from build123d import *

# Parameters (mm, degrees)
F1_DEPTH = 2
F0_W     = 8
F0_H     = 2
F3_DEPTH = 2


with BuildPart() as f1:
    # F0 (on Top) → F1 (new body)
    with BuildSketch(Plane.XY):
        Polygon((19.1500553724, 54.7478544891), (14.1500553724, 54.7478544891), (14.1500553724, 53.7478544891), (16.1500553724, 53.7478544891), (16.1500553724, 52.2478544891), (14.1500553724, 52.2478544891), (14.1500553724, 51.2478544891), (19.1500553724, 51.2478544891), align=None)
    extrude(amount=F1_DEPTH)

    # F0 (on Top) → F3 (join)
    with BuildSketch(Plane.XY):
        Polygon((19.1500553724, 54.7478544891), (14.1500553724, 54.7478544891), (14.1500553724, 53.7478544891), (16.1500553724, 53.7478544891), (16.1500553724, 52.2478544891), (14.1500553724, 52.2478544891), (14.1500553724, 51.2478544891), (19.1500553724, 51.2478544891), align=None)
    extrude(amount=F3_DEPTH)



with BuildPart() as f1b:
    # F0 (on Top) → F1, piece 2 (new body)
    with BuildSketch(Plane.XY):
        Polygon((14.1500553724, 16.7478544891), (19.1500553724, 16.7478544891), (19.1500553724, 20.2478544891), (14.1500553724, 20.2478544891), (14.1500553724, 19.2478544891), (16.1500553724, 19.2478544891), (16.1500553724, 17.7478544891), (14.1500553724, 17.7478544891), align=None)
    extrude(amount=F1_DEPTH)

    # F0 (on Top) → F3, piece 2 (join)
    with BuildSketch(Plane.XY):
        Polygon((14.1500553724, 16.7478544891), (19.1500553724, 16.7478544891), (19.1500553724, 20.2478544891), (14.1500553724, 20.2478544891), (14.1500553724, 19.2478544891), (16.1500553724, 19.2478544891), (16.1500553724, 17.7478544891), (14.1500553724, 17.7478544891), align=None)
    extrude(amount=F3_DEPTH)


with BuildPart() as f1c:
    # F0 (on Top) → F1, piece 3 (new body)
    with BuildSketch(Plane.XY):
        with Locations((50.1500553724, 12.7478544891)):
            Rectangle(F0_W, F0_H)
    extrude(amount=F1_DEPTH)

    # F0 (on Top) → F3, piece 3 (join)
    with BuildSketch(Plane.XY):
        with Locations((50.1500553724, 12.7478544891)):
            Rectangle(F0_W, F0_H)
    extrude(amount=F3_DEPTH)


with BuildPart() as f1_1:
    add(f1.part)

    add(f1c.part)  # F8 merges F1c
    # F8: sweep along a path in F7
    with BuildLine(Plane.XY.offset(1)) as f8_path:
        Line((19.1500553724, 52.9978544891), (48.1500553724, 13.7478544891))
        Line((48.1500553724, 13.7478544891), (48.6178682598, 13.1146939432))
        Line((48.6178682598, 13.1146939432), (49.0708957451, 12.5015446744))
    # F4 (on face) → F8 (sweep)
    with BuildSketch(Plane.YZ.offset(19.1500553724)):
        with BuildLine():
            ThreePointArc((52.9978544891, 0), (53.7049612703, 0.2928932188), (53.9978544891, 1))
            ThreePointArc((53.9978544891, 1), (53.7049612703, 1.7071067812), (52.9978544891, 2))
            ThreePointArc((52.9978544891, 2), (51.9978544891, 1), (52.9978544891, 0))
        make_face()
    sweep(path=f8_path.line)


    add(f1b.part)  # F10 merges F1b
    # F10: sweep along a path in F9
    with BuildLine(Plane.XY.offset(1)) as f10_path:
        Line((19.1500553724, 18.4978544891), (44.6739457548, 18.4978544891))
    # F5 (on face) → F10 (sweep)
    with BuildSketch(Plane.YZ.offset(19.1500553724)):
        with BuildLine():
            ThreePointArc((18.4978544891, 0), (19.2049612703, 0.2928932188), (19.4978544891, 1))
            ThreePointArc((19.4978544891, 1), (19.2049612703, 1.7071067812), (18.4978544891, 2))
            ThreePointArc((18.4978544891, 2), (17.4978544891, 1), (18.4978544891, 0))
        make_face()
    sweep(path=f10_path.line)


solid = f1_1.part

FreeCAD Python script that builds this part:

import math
import FreeCAD as App
import Part
import Sketcher
from FreeCAD import Vector
Q = App.Units.Quantity

doc = App.newDocument("Part")
body = doc.addObject("PartDesign::Body", "Body")

sketch1 = body.newObject("Sketcher::SketchObject", "Sketch")
sketch1.AttachmentSupport = (doc.getObject("XY_Plane"), [""])
sketch1.MapMode = "FlatFace"
sketch1.addGeometry(Part.LineSegment(Vector(19.150055, 54.747854, 0), Vector(14.150055, 54.747854, 0)), False)
sketch1.addGeometry(Part.LineSegment(Vector(14.150055, 54.747854, 0), Vector(14.150055, 53.747854, 0)), False)
sketch1.addGeometry(Part.LineSegment(Vector(14.150055, 53.747854, 0), Vector(16.150055, 53.747854, 0)), False)
sketch1.addGeometry(Part.LineSegment(Vector(16.150055, 53.747854, 0), Vector(16.150055, 52.247854, 0)), False)
sketch1.addGeometry(Part.LineSegment(Vector(16.150055, 52.247854, 0), Vector(14.150055, 52.247854, 0)), False)
sketch1.addGeometry(Part.LineSegment(Vector(14.150055, 52.247854, 0), Vector(14.150055, 51.247854, 0)), False)
sketch1.addGeometry(Part.LineSegment(Vector(14.150055, 51.247854, 0), Vector(19.150055, 51.247854, 0)), False)
sketch1.addGeometry(Part.LineSegment(Vector(19.150055, 51.247854, 0), Vector(19.150055, 54.747854, 0)), False)
sketch1.addConstraint(Sketcher.Constraint("Coincident", 0, 2, 1, 1))
sketch1.addConstraint(Sketcher.Constraint("Coincident", 1, 2, 2, 1))
sketch1.addConstraint(Sketcher.Constraint("Coincident", 2, 2, 3, 1))
sketch1.addConstraint(Sketcher.Constraint("Coincident", 3, 2, 4, 1))
sketch1.addConstraint(Sketcher.Constraint("Coincident", 4, 2, 5, 1))
sketch1.addConstraint(Sketcher.Constraint("Coincident", 5, 2, 6, 1))
sketch1.addConstraint(Sketcher.Constraint("Coincident", 6, 2, 7, 1))
sketch1.addConstraint(Sketcher.Constraint("Coincident", 7, 2, 0, 1))
sketch1.addConstraint(Sketcher.Constraint("Horizontal", 0))
sketch1.addConstraint(Sketcher.Constraint("Vertical", 1))
sketch1.addConstraint(Sketcher.Constraint("Horizontal", 2))
sketch1.addConstraint(Sketcher.Constraint("Vertical", 3))
sketch1.addConstraint(Sketcher.Constraint("Horizontal", 4))
sketch1.addConstraint(Sketcher.Constraint("Vertical", 5))
sketch1.addConstraint(Sketcher.Constraint("Horizontal", 6))
sketch1.addConstraint(Sketcher.Constraint("Vertical", 7))
sketch1.addConstraint(Sketcher.Constraint("Vertical", 1, 2, 4, 2))
sketch1.addConstraint(Sketcher.Constraint("Equal", 1, 5))
sketch1.addConstraint(Sketcher.Constraint("DistanceX", 0, 2, 0, 1, Q("5 mm")))
sketch1.addConstraint(Sketcher.Constraint("DistanceX", 2, 1, 2, 2, Q("2 mm")))
sketch1.addConstraint(Sketcher.Constraint("DistanceY", 1, 2, 1, 1, Q("1 mm")))
sketch1.addConstraint(Sketcher.Constraint("DistanceY", 3, 2, 3, 1, Q("1.5 mm")))
sketch1.addConstraint(Sketcher.Constraint("DistanceX", -1, 1, 0, 2, Q("14.150055 mm")))
sketch1.addConstraint(Sketcher.Constraint("DistanceY", -1, 1, 0, 2, Q("54.747854 mm")))
pad1 = body.newObject("PartDesign::Pad", "Pad")
pad1.Profile = sketch1
pad1.Length = 2

sketch2 = body.newObject("Sketcher::SketchObject", "Sketch001")
sketch2.AttachmentSupport = (doc.getObject("XY_Plane"), [""])
sketch2.MapMode = "FlatFace"
sketch2.addGeometry(Part.LineSegment(Vector(19.150055, 54.747854, 0), Vector(14.150055, 54.747854, 0)), False)
sketch2.addGeometry(Part.LineSegment(Vector(14.150055, 54.747854, 0), Vector(14.150055, 53.747854, 0)), False)
sketch2.addGeometry(Part.LineSegment(Vector(14.150055, 53.747854, 0), Vector(16.150055, 53.747854, 0)), False)
sketch2.addGeometry(Part.LineSegment(Vector(16.150055, 53.747854, 0), Vector(16.150055, 52.247854, 0)), False)
sketch2.addGeometry(Part.LineSegment(Vector(16.150055, 52.247854, 0), Vector(14.150055, 52.247854, 0)), False)
sketch2.addGeometry(Part.LineSegment(Vector(14.150055, 52.247854, 0), Vector(14.150055, 51.247854, 0)), False)
sketch2.addGeometry(Part.LineSegment(Vector(14.150055, 51.247854, 0), Vector(19.150055, 51.247854, 0)), False)
sketch2.addGeometry(Part.LineSegment(Vector(19.150055, 51.247854, 0), Vector(19.150055, 54.747854, 0)), False)
sketch2.addConstraint(Sketcher.Constraint("Coincident", 0, 2, 1, 1))
sketch2.addConstraint(Sketcher.Constraint("Coincident", 1, 2, 2, 1))
sketch2.addConstraint(Sketcher.Constraint("Coincident", 2, 2, 3, 1))
sketch2.addConstraint(Sketcher.Constraint("Coincident", 3, 2, 4, 1))
sketch2.addConstraint(Sketcher.Constraint("Coincident", 4, 2, 5, 1))
sketch2.addConstraint(Sketcher.Constraint("Coincident", 5, 2, 6, 1))
sketch2.addConstraint(Sketcher.Constraint("Coincident", 6, 2, 7, 1))
sketch2.addConstraint(Sketcher.Constraint("Coincident", 7, 2, 0, 1))
sketch2.addConstraint(Sketcher.Constraint("Horizontal", 0))
sketch2.addConstraint(Sketcher.Constraint("Vertical", 1))
sketch2.addConstraint(Sketcher.Constraint("Horizontal", 2))
sketch2.addConstraint(Sketcher.Constraint("Vertical", 3))
sketch2.addConstraint(Sketcher.Constraint("Horizontal", 4))
sketch2.addConstraint(Sketcher.Constraint("Vertical", 5))
sketch2.addConstraint(Sketcher.Constraint("Horizontal", 6))
sketch2.addConstraint(Sketcher.Constraint("Vertical", 7))
sketch2.addConstraint(Sketcher.Constraint("Vertical", 1, 2, 4, 2))
sketch2.addConstraint(Sketcher.Constraint("Equal", 1, 5))
sketch2.addConstraint(Sketcher.Constraint("DistanceX", 0, 2, 0, 1, Q("5 mm")))
sketch2.addConstraint(Sketcher.Constraint("DistanceX", 2, 1, 2, 2, Q("2 mm")))
sketch2.addConstraint(Sketcher.Constraint("DistanceY", 1, 2, 1, 1, Q("1 mm")))
sketch2.addConstraint(Sketcher.Constraint("DistanceY", 3, 2, 3, 1, Q("1.5 mm")))
sketch2.addConstraint(Sketcher.Constraint("DistanceX", -1, 1, 0, 2, Q("14.150055 mm")))
sketch2.addConstraint(Sketcher.Constraint("DistanceY", -1, 1, 0, 2, Q("54.747854 mm")))
pad2 = body.newObject("PartDesign::Pad", "Pad001")
pad2.Profile = sketch2
pad2.Length = 2
body2 = doc.addObject("PartDesign::Body", "Body001")

sketch3 = body2.newObject("Sketcher::SketchObject", "Sketch002")
sketch3.AttachmentSupport = (doc.getObject("XY_Plane001"), [""])
sketch3.MapMode = "FlatFace"
sketch3.addGeometry(Part.LineSegment(Vector(14.150055, 16.747854, 0), Vector(19.150055, 16.747854, 0)), False)
sketch3.addGeometry(Part.LineSegment(Vector(19.150055, 16.747854, 0), Vector(19.150055, 20.247854, 0)), False)
sketch3.addGeometry(Part.LineSegment(Vector(19.150055, 20.247854, 0), Vector(14.150055, 20.247854, 0)), False)
sketch3.addGeometry(Part.LineSegment(Vector(14.150055, 20.247854, 0), Vector(14.150055, 19.247854, 0)), False)
sketch3.addGeometry(Part.LineSegment(Vector(14.150055, 19.247854, 0), Vector(16.150055, 19.247854, 0)), False)
sketch3.addGeometry(Part.LineSegment(Vector(16.150055, 19.247854, 0), Vector(16.150055, 17.747854, 0)), False)
sketch3.addGeometry(Part.LineSegment(Vector(16.150055, 17.747854, 0), Vector(14.150055, 17.747854, 0)), False)
sketch3.addGeometry(Part.LineSegment(Vector(14.150055, 17.747854, 0), Vector(14.150055, 16.747854, 0)), False)
sketch3.addConstraint(Sketcher.Constraint("Coincident", 0, 2, 1, 1))
sketch3.addConstraint(Sketcher.Constraint("Coincident", 1, 2, 2, 1))
sketch3.addConstraint(Sketcher.Constraint("Coincident", 2, 2, 3, 1))
sketch3.addConstraint(Sketcher.Constraint("Coincident", 3, 2, 4, 1))
sketch3.addConstraint(Sketcher.Constraint("Coincident", 4, 2, 5, 1))
sketch3.addConstraint(Sketcher.Constraint("Coincident", 5, 2, 6, 1))
sketch3.addConstraint(Sketcher.Constraint("Coincident", 6, 2, 7, 1))
sketch3.addConstraint(Sketcher.Constraint("Coincident", 7, 2, 0, 1))
sketch3.addConstraint(Sketcher.Constraint("Horizontal", 0))
sketch3.addConstraint(Sketcher.Constraint("Vertical", 1))
sketch3.addConstraint(Sketcher.Constraint("Horizontal", 2))
sketch3.addConstraint(Sketcher.Constraint("Vertical", 3))
sketch3.addConstraint(Sketcher.Constraint("Horizontal", 4))
sketch3.addConstraint(Sketcher.Constraint("Vertical", 5))
sketch3.addConstraint(Sketcher.Constraint("Horizontal", 6))
sketch3.addConstraint(Sketcher.Constraint("Vertical", 7))
sketch3.addConstraint(Sketcher.Constraint("Vertical", 3, 2, 6, 2))
sketch3.addConstraint(Sketcher.Constraint("Equal", 3, 7))
sketch3.addConstraint(Sketcher.Constraint("DistanceX", 0, 1, 0, 2, Q("5 mm")))
sketch3.addConstraint(Sketcher.Constraint("DistanceX", 4, 1, 4, 2, Q("2 mm")))
sketch3.addConstraint(Sketcher.Constraint("DistanceY", 3, 2, 3, 1, Q("1 mm")))
sketch3.addConstraint(Sketcher.Constraint("DistanceY", 1, 1, 1, 2, Q("3.5 mm")))
sketch3.addConstraint(Sketcher.Constraint("DistanceX", -1, 1, 0, 2, Q("19.150055 mm")))
sketch3.addConstraint(Sketcher.Constraint("DistanceY", -1, 1, 0, 2, Q("16.747854 mm")))
pad3 = body2.newObject("PartDesign::Pad", "Pad002")
pad3.Profile = sketch3
pad3.Length = 2

sketch4 = body2.newObject("Sketcher::SketchObject", "Sketch003")
sketch4.AttachmentSupport = (doc.getObject("XY_Plane001"), [""])
sketch4.MapMode = "FlatFace"
sketch4.addGeometry(Part.LineSegment(Vector(14.150055, 16.747854, 0), Vector(19.150055, 16.747854, 0)), False)
sketch4.addGeometry(Part.LineSegment(Vector(19.150055, 16.747854, 0), Vector(19.150055, 20.247854, 0)), False)
sketch4.addGeometry(Part.LineSegment(Vector(19.150055, 20.247854, 0), Vector(14.150055, 20.247854, 0)), False)
sketch4.addGeometry(Part.LineSegment(Vector(14.150055, 20.247854, 0), Vector(14.150055, 19.247854, 0)), False)
sketch4.addGeometry(Part.LineSegment(Vector(14.150055, 19.247854, 0), Vector(16.150055, 19.247854, 0)), False)
sketch4.addGeometry(Part.LineSegment(Vector(16.150055, 19.247854, 0), Vector(16.150055, 17.747854, 0)), False)
sketch4.addGeometry(Part.LineSegment(Vector(16.150055, 17.747854, 0), Vector(14.150055, 17.747854, 0)), False)
sketch4.addGeometry(Part.LineSegment(Vector(14.150055, 17.747854, 0), Vector(14.150055, 16.747854, 0)), False)
sketch4.addConstraint(Sketcher.Constraint("Coincident", 0, 2, 1, 1))
sketch4.addConstraint(Sketcher.Constraint("Coincident", 1, 2, 2, 1))
sketch4.addConstraint(Sketcher.Constraint("Coincident", 2, 2, 3, 1))
sketch4.addConstraint(Sketcher.Constraint("Coincident", 3, 2, 4, 1))
sketch4.addConstraint(Sketcher.Constraint("Coincident", 4, 2, 5, 1))
sketch4.addConstraint(Sketcher.Constraint("Coincident", 5, 2, 6, 1))
sketch4.addConstraint(Sketcher.Constraint("Coincident", 6, 2, 7, 1))
sketch4.addConstraint(Sketcher.Constraint("Coincident", 7, 2, 0, 1))
sketch4.addConstraint(Sketcher.Constraint("Horizontal", 0))
sketch4.addConstraint(Sketcher.Constraint("Vertical", 1))
sketch4.addConstraint(Sketcher.Constraint("Horizontal", 2))
sketch4.addConstraint(Sketcher.Constraint("Vertical", 3))
sketch4.addConstraint(Sketcher.Constraint("Horizontal", 4))
sketch4.addConstraint(Sketcher.Constraint("Vertical", 5))
sketch4.addConstraint(Sketcher.Constraint("Horizontal", 6))
sketch4.addConstraint(Sketcher.Constraint("Vertical", 7))
sketch4.addConstraint(Sketcher.Constraint("Vertical", 3, 2, 6, 2))
sketch4.addConstraint(Sketcher.Constraint("Equal", 3, 7))
sketch4.addConstraint(Sketcher.Constraint("DistanceX", 0, 1, 0, 2, Q("5 mm")))
sketch4.addConstraint(Sketcher.Constraint("DistanceX", 4, 1, 4, 2, Q("2 mm")))
sketch4.addConstraint(Sketcher.Constraint("DistanceY", 3, 2, 3, 1, Q("1 mm")))
sketch4.addConstraint(Sketcher.Constraint("DistanceY", 1, 1, 1, 2, Q("3.5 mm")))
sketch4.addConstraint(Sketcher.Constraint("DistanceX", -1, 1, 0, 2, Q("19.150055 mm")))
sketch4.addConstraint(Sketcher.Constraint("DistanceY", -1, 1, 0, 2, Q("16.747854 mm")))
pad4 = body2.newObject("PartDesign::Pad", "Pad003")
pad4.Profile = sketch4
pad4.Length = 2
body3 = doc.addObject("PartDesign::Body", "Body002")

sketch5 = body3.newObject("Sketcher::SketchObject", "Sketch004")
sketch5.AttachmentSupport = (doc.getObject("XY_Plane002"), [""])
sketch5.MapMode = "FlatFace"
sketch5.addGeometry(Part.LineSegment(Vector(46.150055, 13.747854, 0), Vector(46.150055, 11.747854, 0)), False)
sketch5.addGeometry(Part.LineSegment(Vector(46.150055, 11.747854, 0), Vector(54.150055, 11.747854, 0)), False)
sketch5.addGeometry(Part.LineSegment(Vector(54.150055, 11.747854, 0), Vector(54.150055, 13.747854, 0)), False)
sketch5.addGeometry(Part.LineSegment(Vector(54.150055, 13.747854, 0), Vector(46.150055, 13.747854, 0)), False)
sketch5.addConstraint(Sketcher.Constraint("Coincident", 0, 2, 1, 1))
sketch5.addConstraint(Sketcher.Constraint("Coincident", 1, 2, 2, 1))
sketch5.addConstraint(Sketcher.Constraint("Coincident", 2, 2, 3, 1))
sketch5.addConstraint(Sketcher.Constraint("Coincident", 3, 2, 0, 1))
sketch5.addConstraint(Sketcher.Constraint("Vertical", 0))
sketch5.addConstraint(Sketcher.Constraint("Horizontal", 1))
sketch5.addConstraint(Sketcher.Constraint("Vertical", 2))
sketch5.addConstraint(Sketcher.Constraint("Horizontal", 3))
sketch5.addConstraint(Sketcher.Constraint("DistanceX", 1, 1, 1, 2, Q("8 mm")))
sketch5.addConstraint(Sketcher.Constraint("DistanceY", 0, 2, 0, 1, Q("2 mm")))
sketch5.addConstraint(Sketcher.Constraint("DistanceX", -1, 1, 0, 2, Q("46.150055 mm")))
sketch5.addConstraint(Sketcher.Constraint("DistanceY", -1, 1, 0, 2, Q("11.747854 mm")))
pad5 = body3.newObject("PartDesign::Pad", "Pad004")
pad5.Profile = sketch5
pad5.Length = 2

sketch6 = body3.newObject("Sketcher::SketchObject", "Sketch005")
sketch6.AttachmentSupport = (doc.getObject("XY_Plane002"), [""])
sketch6.MapMode = "FlatFace"
sketch6.addGeometry(Part.LineSegment(Vector(46.150055, 13.747854, 0), Vector(46.150055, 11.747854, 0)), False)
sketch6.addGeometry(Part.LineSegment(Vector(46.150055, 11.747854, 0), Vector(54.150055, 11.747854, 0)), False)
sketch6.addGeometry(Part.LineSegment(Vector(54.150055, 11.747854, 0), Vector(54.150055, 13.747854, 0)), False)
sketch6.addGeometry(Part.LineSegment(Vector(54.150055, 13.747854, 0), Vector(46.150055, 13.747854, 0)), False)
sketch6.addConstraint(Sketcher.Constraint("Coincident", 0, 2, 1, 1))
sketch6.addConstraint(Sketcher.Constraint("Coincident", 1, 2, 2, 1))
sketch6.addConstraint(Sketcher.Constraint("Coincident", 2, 2, 3, 1))
sketch6.addConstraint(Sketcher.Constraint("Coincident", 3, 2, 0, 1))
sketch6.addConstraint(Sketcher.Constraint("Vertical", 0))
sketch6.addConstraint(Sketcher.Constraint("Horizontal", 1))
sketch6.addConstraint(Sketcher.Constraint("Vertical", 2))
sketch6.addConstraint(Sketcher.Constraint("Horizontal", 3))
sketch6.addConstraint(Sketcher.Constraint("DistanceX", 1, 1, 1, 2, Q("8 mm")))
sketch6.addConstraint(Sketcher.Constraint("DistanceY", 0, 2, 0, 1, Q("2 mm")))
sketch6.addConstraint(Sketcher.Constraint("DistanceX", -1, 1, 0, 2, Q("46.150055 mm")))
sketch6.addConstraint(Sketcher.Constraint("DistanceY", -1, 1, 0, 2, Q("11.747854 mm")))
pad6 = body3.newObject("PartDesign::Pad", "Pad005")
pad6.Profile = sketch6
pad6.Length = 2
body.AllowCompound = True
doc.recompute()

boolean = body.newObject("PartDesign::Boolean", "Boolean")
boolean.Type = "Fuse"
boolean.addObjects([body3])

sketch7 = body.newObject("Sketcher::SketchObject", "Sketch006")
sketch7.AttachmentSupport = (doc.getObject("YZ_Plane"), [""])
sketch7.MapMode = "FlatFace"
sketch7.AttachmentOffset = App.Placement(Vector(0, 0, 19.150055), App.Rotation())
sketch7.addGeometry(Part.ArcOfCircle(Part.Circle(Vector(52.997854, 1, 0), Vector(0, 0, 1), 1), math.radians(-90), math.radians(0)), False)
sketch7.addGeometry(Part.ArcOfCircle(Part.Circle(Vector(52.997854, 1, 0), Vector(0, 0, 1), 1), math.radians(0), math.radians(90)), False)
sketch7.addGeometry(Part.ArcOfCircle(Part.Circle(Vector(52.997854, 1, 0), Vector(0, 0, 1), 1), math.radians(90), math.radians(270)), False)
sketch7.addConstraint(Sketcher.Constraint("Tangent", 0, 2, 1, 1))
sketch7.addConstraint(Sketcher.Constraint("Tangent", 1, 2, 2, 1))
sketch7.addConstraint(Sketcher.Constraint("Tangent", 2, 2, 0, 1))
sketch7.addConstraint(Sketcher.Constraint("PointOnObject", 2, 2, -1))
sketch7.addConstraint(Sketcher.Constraint("Horizontal", 2, 3, 0, 2))
sketch7.addConstraint(Sketcher.Constraint("Vertical", 2, 3, 1, 2))
sketch7.addConstraint(Sketcher.Constraint("Vertical", 1, 2, 2, 2))
sketch7.addConstraint(Sketcher.Constraint("Radius", 0, Q("1 mm")))
sketch7.addConstraint(Sketcher.Constraint("DistanceX", -1, 1, 0, 3, Q("52.997854 mm")))

sketch8 = body.newObject("Sketcher::SketchObject", "Sketch007")
sketch8.Placement = App.Placement(Vector(37.717534, 27.867732, 0), App.Rotation(Vector(0.594247011, -0.804282593, 0), Vector(0, 0, 0.999999999), Vector(-0.804282593, -0.594247011, 0), "ZXY"))
sketch8.addGeometry(Part.LineSegment(Vector(-31.245389, 1, 0), Vector(17.555866, 1, 0)), False)
sketch8.addGeometry(Part.LineSegment(Vector(17.555866, 1, 0), Vector(18.343103, 1, 0)), False)
sketch8.addGeometry(Part.LineSegment(Vector(18.343103, 1, 0), Vector(19.105458, 1, 0)), False)
sketch8.addConstraint(Sketcher.Constraint("Coincident", 0, 2, 1, 1))
sketch8.addConstraint(Sketcher.Constraint("Coincident", 1, 2, 2, 1))
sketch8.addConstraint(Sketcher.Constraint("Horizontal", 0))
sketch8.addConstraint(Sketcher.Constraint("Horizontal", 1))
sketch8.addConstraint(Sketcher.Constraint("Horizontal", 2))
sketch8.addConstraint(Sketcher.Constraint("DistanceY", -1, 1, 0, 1, Q("1 mm")))
sketch8.addConstraint(Sketcher.Constraint("DistanceX", 0, 1, 0, 2, Q("48.801255 mm")))
sketch8.addConstraint(Sketcher.Constraint("DistanceX", 1, 1, 1, 2, Q("0.787236 mm")))
sketch8.addConstraint(Sketcher.Constraint("DistanceX", 2, 1, 2, 2, Q("0.762356 mm")))
sketch8.addConstraint(Sketcher.Constraint("DistanceX", 0, 1, -1, 1, Q("31.245389 mm")))
doc.recompute()

additivepipe = body.newObject("PartDesign::AdditivePipe", "AdditivePipe")
additivepipe.Profile = sketch7
additivepipe.Spine = (sketch8, ["Edge1", "Edge2", "Edge3"])
doc.recompute()

boolean2 = body.newObject("PartDesign::Boolean", "Boolean001")
boolean2.Type = "Fuse"
boolean2.addObjects([body2])

sketch9 = body.newObject("Sketcher::SketchObject", "Sketch008")
sketch9.AttachmentSupport = (doc.getObject("YZ_Plane"), [""])
sketch9.MapMode = "FlatFace"
sketch9.AttachmentOffset = App.Placement(Vector(0, 0, 19.150055), App.Rotation())
sketch9.addGeometry(Part.ArcOfCircle(Part.Circle(Vector(18.497854, 1, 0), Vector(0, 0, 1), 1), math.radians(-90), math.radians(0)), False)
sketch9.addGeometry(Part.ArcOfCircle(Part.Circle(Vector(18.497854, 1, 0), Vector(0, 0, 1), 1), math.radians(0), math.radians(90)), False)
sketch9.addGeometry(Part.ArcOfCircle(Part.Circle(Vector(18.497854, 1, 0), Vector(0, 0, 1), 1), math.radians(90), math.radians(270)), False)
sketch9.addConstraint(Sketcher.Constraint("Tangent", 0, 2, 1, 1))
sketch9.addConstraint(Sketcher.Constraint("Tangent", 1, 2, 2, 1))
sketch9.addConstraint(Sketcher.Constraint("Tangent", 2, 2, 0, 1))
sketch9.addConstraint(Sketcher.Constraint("PointOnObject", 2, 2, -1))
sketch9.addConstraint(Sketcher.Constraint("Horizontal", 2, 3, 0, 2))
sketch9.addConstraint(Sketcher.Constraint("Vertical", 2, 3, 1, 2))
sketch9.addConstraint(Sketcher.Constraint("Vertical", 1, 2, 2, 2))
sketch9.addConstraint(Sketcher.Constraint("Radius", 0, Q("1 mm")))
sketch9.addConstraint(Sketcher.Constraint("DistanceX", -1, 1, 0, 3, Q("18.497854 mm")))

sketch10 = body.newObject("Sketcher::SketchObject", "Sketch009")
sketch10.AttachmentSupport = (doc.getObject("XY_Plane"), [""])
sketch10.MapMode = "FlatFace"
sketch10.AttachmentOffset = App.Placement(Vector(0, 0, 1), App.Rotation())
sketch10.addGeometry(Part.LineSegment(Vector(19.150055, 18.497854, 0), Vector(44.673946, 18.497854, 0)), False)
sketch10.addConstraint(Sketcher.Constraint("Horizontal", 0))
sketch10.addConstraint(Sketcher.Constraint("DistanceX", 0, 1, 0, 2, Q("25.52389 mm")))
sketch10.addConstraint(Sketcher.Constraint("DistanceX", -1, 1, 0, 1, Q("19.150055 mm")))
sketch10.addConstraint(Sketcher.Constraint("DistanceY", -1, 1, 0, 1, Q("18.497854 mm")))
doc.recompute()

additivepipe2 = body.newObject("PartDesign::AdditivePipe", "AdditivePipe001")
additivepipe2.Profile = sketch9
additivepipe2.Spine = (sketch10, ["Edge1"])

doc.recompute()
